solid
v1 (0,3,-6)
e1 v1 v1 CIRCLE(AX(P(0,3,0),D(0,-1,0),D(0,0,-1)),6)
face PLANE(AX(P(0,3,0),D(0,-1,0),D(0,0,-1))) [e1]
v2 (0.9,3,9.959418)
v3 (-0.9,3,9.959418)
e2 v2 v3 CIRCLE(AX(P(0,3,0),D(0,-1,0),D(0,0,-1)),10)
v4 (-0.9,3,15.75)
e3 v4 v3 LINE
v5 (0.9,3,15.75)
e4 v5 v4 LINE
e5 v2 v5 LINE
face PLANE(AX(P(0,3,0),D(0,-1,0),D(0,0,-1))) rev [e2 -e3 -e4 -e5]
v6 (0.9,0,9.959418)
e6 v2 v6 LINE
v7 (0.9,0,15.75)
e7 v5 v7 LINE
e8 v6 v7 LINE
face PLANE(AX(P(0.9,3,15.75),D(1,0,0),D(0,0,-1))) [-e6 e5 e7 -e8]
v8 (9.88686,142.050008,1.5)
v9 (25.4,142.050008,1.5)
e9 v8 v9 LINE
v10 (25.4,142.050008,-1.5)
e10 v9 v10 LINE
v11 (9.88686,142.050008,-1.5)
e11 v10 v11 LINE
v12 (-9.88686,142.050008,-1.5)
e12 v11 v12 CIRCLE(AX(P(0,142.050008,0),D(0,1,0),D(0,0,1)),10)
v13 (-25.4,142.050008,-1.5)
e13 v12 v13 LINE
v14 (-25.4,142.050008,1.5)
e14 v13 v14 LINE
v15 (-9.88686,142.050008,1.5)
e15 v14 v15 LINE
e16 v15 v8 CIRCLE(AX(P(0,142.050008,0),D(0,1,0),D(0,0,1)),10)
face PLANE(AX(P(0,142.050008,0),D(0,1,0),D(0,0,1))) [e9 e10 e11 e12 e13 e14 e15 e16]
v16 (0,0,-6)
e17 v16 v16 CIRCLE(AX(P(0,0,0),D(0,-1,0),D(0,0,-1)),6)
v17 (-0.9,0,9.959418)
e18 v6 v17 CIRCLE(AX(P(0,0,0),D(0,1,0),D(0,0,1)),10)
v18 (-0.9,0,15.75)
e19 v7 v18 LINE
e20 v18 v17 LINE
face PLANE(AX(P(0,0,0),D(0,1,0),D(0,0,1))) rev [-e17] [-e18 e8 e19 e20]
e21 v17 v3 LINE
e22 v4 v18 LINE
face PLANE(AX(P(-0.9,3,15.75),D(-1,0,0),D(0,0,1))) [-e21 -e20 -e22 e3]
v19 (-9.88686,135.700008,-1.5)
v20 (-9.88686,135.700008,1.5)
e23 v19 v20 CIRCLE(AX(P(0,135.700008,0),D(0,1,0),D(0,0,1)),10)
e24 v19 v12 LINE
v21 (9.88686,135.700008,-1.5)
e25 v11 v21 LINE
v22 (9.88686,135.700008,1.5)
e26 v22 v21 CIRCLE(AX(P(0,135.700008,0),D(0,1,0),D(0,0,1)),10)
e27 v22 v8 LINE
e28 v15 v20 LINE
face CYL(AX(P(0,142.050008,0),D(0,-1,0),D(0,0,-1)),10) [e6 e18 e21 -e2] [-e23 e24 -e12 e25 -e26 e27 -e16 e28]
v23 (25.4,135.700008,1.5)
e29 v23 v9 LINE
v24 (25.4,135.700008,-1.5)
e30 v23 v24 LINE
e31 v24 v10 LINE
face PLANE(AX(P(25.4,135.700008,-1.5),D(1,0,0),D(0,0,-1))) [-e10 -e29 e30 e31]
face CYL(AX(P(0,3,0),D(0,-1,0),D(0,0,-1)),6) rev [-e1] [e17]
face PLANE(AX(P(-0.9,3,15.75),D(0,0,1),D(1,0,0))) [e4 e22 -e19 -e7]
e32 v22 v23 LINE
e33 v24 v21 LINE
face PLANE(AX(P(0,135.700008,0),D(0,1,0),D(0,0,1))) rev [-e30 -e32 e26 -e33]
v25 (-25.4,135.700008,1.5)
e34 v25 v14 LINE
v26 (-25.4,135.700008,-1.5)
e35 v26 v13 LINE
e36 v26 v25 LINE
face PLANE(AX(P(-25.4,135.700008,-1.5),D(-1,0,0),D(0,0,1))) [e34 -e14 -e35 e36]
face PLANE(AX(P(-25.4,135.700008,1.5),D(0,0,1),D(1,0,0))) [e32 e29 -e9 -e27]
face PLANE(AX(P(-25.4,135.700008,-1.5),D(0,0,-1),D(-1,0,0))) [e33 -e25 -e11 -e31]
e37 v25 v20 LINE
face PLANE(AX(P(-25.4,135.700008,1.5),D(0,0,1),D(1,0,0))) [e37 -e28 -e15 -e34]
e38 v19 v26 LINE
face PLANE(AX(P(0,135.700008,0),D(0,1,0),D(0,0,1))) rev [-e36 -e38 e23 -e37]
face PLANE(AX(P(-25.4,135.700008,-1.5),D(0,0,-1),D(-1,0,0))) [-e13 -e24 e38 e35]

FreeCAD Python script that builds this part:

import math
import FreeCAD as App
import Part
import Sketcher
Q = App.Units.Quantity

doc = App.newDocument("Part")
body = doc.addObject("PartDesign::Body", "Body")

# Sketch on XZ plane
sketch1 = body.newObject("Sketcher::SketchObject", "Sketch")
sketch1.AttachmentSupport = (doc.getObject("XZ_Plane"), [""])
sketch1.MapMode = "FlatFace"
sketch1.addGeometry(Part.Circle(App.Vector(0, 0, 0), App.Vector(0, 0, 1), 10), False)
sketch1.addConstraint([
    Sketcher.Constraint("Coincident", 0, 3, -1, 1),
    Sketcher.Constraint("Diameter", 0, Q("20 mm")),
])
pad1 = body.newObject("PartDesign::Pad", "Pad")
pad1.Profile = sketch1
pad1.Length = 142.050008
pad1.Reversed = True

# Sketch on XZ plane
sketch2 = body.newObject("Sketcher::SketchObject", "Sketch001")
sketch2.AttachmentSupport = (doc.getObject("XZ_Plane"), [""])
sketch2.MapMode = "FlatFace"
sketch2.addGeometry([
    Part.LineSegment(App.Vector(0.9, 15.8, 0), App.Vector(-0.9, 15.8, 0)),
    Part.LineSegment(App.Vector(-0.9, 15.8, 0), App.Vector(-0.9, 9.4, 0)),
    Part.ArcOfCircle(Part.Circle(App.Vector(0, 0, 0), App.Vector(0, 0, 1), 9.4), math.radians(84.5), math.radians(95.5)),
    Part.LineSegment(App.Vector(0.9, 9.4, 0), App.Vector(0.9, 15.8, 0)),
], False)
sketch2.addConstraint([
    Sketcher.Constraint("Coincident", 0, 2, 1, 1),
    Sketcher.Constraint("Coincident", 1, 2, 2, 2),
    Sketcher.Constraint("Coincident", 2, 1, 3, 1),
    Sketcher.Constraint("Coincident", 3, 2, 0, 1),
    Sketcher.Constraint("Horizontal", 0),
    Sketcher.Constraint("Vertical", 1),
    Sketcher.Constraint("Vertical", 3),
    Sketcher.Constraint("Coincident", 2, 3, -1, 1),
    Sketcher.Constraint("Horizontal", 1, 2, 2, 1),
    Sketcher.Constraint("DistanceX", 0, 2, 0, 1, Q("1.8 mm")),
    Sketcher.Constraint("Radius", 2, Q("9.398 mm")),
    Sketcher.Constraint("DistanceY", -1, 1, 0, 2, Q("15.75 mm")),
])
pad2 = body.newObject("PartDesign::Pad", "Pad001")
pad2.Profile = sketch2
pad2.Length = 3
pad2.Reversed = True

# Sketch on XZ plane
sketch3 = body.newObject("Sketcher::SketchObject", "Sketch002")
sketch3.AttachmentSupport = (doc.getObject("XZ_Plane"), [""])
sketch3.MapMode = "FlatFace"
sketch3.AttachmentOffset = App.Placement(App.Vector(0, 0, -142.050008), App.Rotation())
sketch3.addGeometry([
    Part.LineSegment(App.Vector(-25.4, -1.5, 0), App.Vector(-25.4, 1.5, 0)),
    Part.LineSegment(App.Vector(-25.4, 1.5, 0), App.Vector(25.4, 1.5, 0)),
    Part.LineSegment(App.Vector(25.4, 1.5, 0), App.Vector(25.4, -1.5, 0)),
    Part.LineSegment(App.Vector(25.4, -1.5, 0), App.Vector(-25.4, -1.5, 0)),
], False)
sketch3.addConstraint([
    Sketcher.Constraint("Coincident", 0, 2, 1, 1),
    Sketcher.Constraint("Coincident", 1, 2, 2, 1),
    Sketcher.Constraint("Coincident", 2, 2, 3, 1),
    Sketcher.Constraint("Coincident", 3, 2, 0, 1),
    Sketcher.Constraint("Vertical", 0),
    Sketcher.Constraint("Horizontal", 1),
    Sketcher.Constraint("Vertical", 2),
    Sketcher.Constraint("Horizontal", 3),
    Sketcher.Constraint("Symmetric", 0, 2, 2, 2, -1, 1),
    Sketcher.Constraint("DistanceY", 0, 1, 0, 2, Q("3 mm")),
    Sketcher.Constraint("DistanceX", 1, 1, 1, 2, Q("50.8 mm")),
])
pad3 = body.newObject("PartDesign::Pad", "Pad002")
pad3.Profile = sketch3
pad3.Length = 6.35

# Sketch on XZ plane
sketch4 = body.newObject("Sketcher::SketchObject", "Sketch003")
sketch4.AttachmentSupport = (doc.getObject("XZ_Plane"), [""])
sketch4.MapMode = "FlatFace"
sketch4.addGeometry(Part.Circle(App.Vector(0, 0, 0), App.Vector(0, 0, 1), 6), False)
sketch4.addConstraint([
    Sketcher.Constraint("Coincident", 0, 3, -1, 1),
    Sketcher.Constraint("Diameter", 0, Q("12 mm")),
])
pocket1 = body.newObject("PartDesign::Pocket", "Pocket")
pocket1.Profile = sketch4
pocket1.Length = 3

doc.recompute()
